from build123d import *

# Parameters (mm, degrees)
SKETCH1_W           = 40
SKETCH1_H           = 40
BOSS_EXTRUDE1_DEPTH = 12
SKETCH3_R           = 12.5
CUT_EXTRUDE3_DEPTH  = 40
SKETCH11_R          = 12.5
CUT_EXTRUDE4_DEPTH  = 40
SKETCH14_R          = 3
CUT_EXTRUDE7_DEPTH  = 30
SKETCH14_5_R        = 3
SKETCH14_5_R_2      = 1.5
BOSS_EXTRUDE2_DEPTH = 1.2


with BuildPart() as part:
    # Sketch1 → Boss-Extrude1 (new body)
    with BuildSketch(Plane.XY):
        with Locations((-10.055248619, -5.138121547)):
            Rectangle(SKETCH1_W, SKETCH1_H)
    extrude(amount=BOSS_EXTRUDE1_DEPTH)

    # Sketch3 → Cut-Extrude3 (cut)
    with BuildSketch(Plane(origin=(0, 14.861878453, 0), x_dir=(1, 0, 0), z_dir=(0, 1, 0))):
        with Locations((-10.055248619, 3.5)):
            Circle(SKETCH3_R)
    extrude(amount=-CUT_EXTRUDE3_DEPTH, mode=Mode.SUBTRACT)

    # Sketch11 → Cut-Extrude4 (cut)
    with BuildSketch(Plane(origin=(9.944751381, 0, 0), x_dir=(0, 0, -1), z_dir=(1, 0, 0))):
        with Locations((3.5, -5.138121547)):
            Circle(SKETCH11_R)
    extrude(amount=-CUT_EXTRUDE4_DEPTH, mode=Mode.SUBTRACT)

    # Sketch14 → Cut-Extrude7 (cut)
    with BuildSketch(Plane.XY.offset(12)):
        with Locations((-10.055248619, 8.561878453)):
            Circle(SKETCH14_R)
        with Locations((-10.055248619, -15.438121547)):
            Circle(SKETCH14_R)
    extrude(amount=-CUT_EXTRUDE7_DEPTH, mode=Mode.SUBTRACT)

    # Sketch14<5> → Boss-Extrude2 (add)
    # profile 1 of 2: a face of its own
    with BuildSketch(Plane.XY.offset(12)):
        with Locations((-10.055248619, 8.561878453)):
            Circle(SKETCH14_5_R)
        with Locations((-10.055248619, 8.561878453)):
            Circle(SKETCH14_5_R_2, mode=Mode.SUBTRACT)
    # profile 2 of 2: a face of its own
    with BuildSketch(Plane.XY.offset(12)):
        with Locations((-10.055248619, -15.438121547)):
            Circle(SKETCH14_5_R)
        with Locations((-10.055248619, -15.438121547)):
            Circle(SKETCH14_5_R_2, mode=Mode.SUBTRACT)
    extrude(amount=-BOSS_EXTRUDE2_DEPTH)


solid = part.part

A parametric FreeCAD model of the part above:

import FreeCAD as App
import Part
import Sketcher
from FreeCAD import Vector
Q = App.Units.Quantity


def add_polygon(sketch, points):
    """Adds a closed chain of lines whose ends are joined by coincident constraints."""
    first, n = sketch.GeometryCount, len(points)
    for a, b in zip(points, points[1:] + points[:1]):
        sketch.addGeometry(Part.LineSegment(App.Vector(*a, 0), App.Vector(*b, 0)), False)
    for i in range(n):
        sketch.addConstraint(Sketcher.Constraint("Coincident", first + i, 2, first + (i + 1) % n, 1))

doc = App.newDocument("Part")
body = doc.addObject("PartDesign::Body", "Body")

sketch1 = doc.addObject("Sketcher::SketchObject", "Sketch")
body.addObject(sketch1)
sketch1.AttachmentSupport = (doc.XY_Plane, [""])
sketch1.MapMode = "FlatFace"
add_polygon(sketch1, [(-30, 15), (-30, -25), (10, -25), (10, 15)])
sketch1.addConstraint([
    Sketcher.Constraint("Vertical", 0),
    Sketcher.Constraint("Horizontal", 1),
    Sketcher.Constraint("Vertical", 2),
    Sketcher.Constraint("Horizontal", 3),
    Sketcher.Constraint("Equal", 3, 0),
    Sketcher.Constraint("DistanceX", 1, 1, 1, 2, Q("40 mm")),
    Sketcher.Constraint("DistanceX", 0, 2, -1, 1, Q("30.055249 mm")),
    Sketcher.Constraint("DistanceY", 0, 2, -1, 1, Q("25.138122 mm")),
])
pad1 = doc.addObject("PartDesign::Pad", "Pad")
body.addObject(pad1)
pad1.Profile = sketch1
pad1.Length = 12

sketch2 = doc.addObject("Sketcher::SketchObject", "Sketch001")
body.addObject(sketch2)
sketch2.AttachmentSupport = (doc.XZ_Plane, [""])
sketch2.MapMode = "FlatFace"
sketch2.AttachmentOffset = App.Placement(Vector(0, 0, -14.861878), App.Rotation())
sketch2.addGeometry(Part.Circle(Vector(-10, -4, 0), Vector(0, 0, 1), 12), False)
sketch2.addConstraint([
    Sketcher.Constraint("Diameter", 0, Q("25 mm")),
    Sketcher.Constraint("DistanceY", 0, 3, -1, 1, Q("3.5 mm")),
    Sketcher.Constraint("DistanceX", 0, 3, -1, 1, Q("10.055249 mm")),
])
pocket1 = doc.addObject("PartDesign::Pocket", "Pocket")
body.addObject(pocket1)
pocket1.Profile = sketch2
pocket1.Length = 40
pocket1.Reversed = True

sketch3 = doc.addObject("Sketcher::SketchObject", "Sketch002")
body.addObject(sketch3)
sketch3.AttachmentSupport = (doc.YZ_Plane, [""])
sketch3.MapMode = "FlatFace"
sketch3.AttachmentOffset = App.Placement(Vector(0, 0, 9.944751), App.Rotation())
sketch3.addGeometry(Part.Circle(Vector(-5, -4, 0), Vector(0, 0, 1), 12), False)
sketch3.addConstraint([
    Sketcher.Constraint("Diameter", 0, Q("25 mm")),
    Sketcher.Constraint("DistanceY", 0, 3, -1, 1, Q("3.5 mm")),
    Sketcher.Constraint("DistanceX", 0, 3, -1, 1, Q("5.138122 mm")),
])
pocket2 = doc.addObject("PartDesign::Pocket", "Pocket001")
body.addObject(pocket2)
pocket2.Profile = sketch3
pocket2.Length = 40

sketch4 = doc.addObject("Sketcher::SketchObject", "Sketch003")
body.addObject(sketch4)
sketch4.AttachmentSupport = (doc.XY_Plane, [""])
sketch4.MapMode = "FlatFace"
sketch4.AttachmentOffset = App.Placement(Vector(0, 0, 12), App.Rotation())
sketch4.addGeometry([
    Part.Circle(Vector(-10.1, 8.6, 0), Vector(0, 0, 1), 3),
    Part.Circle(Vector(-10.1, -15.4, 0), Vector(0, 0, 1), 3),
], False)
sketch4.addConstraint([
    Sketcher.Constraint("Equal", 0, 1),
    Sketcher.Constraint("Vertical", 0, 3, 1, 3),
    Sketcher.Constraint("Diameter", 0, Q("6 mm")),
    Sketcher.Constraint("DistanceY", 1, 3, 0, 3, Q("24 mm")),
    Sketcher.Constraint("DistanceX", 0, 3, -1, 1, Q("10.055249 mm")),
    Sketcher.Constraint("DistanceY", -1, 1, 0, 3, Q("8.561878 mm")),
])
pocket3 = doc.addObject("PartDesign::Pocket", "Pocket002")
body.addObject(pocket3)
pocket3.Profile = sketch4
pocket3.Length = 30

sketch5 = doc.addObject("Sketcher::SketchObject", "Sketch004")
body.addObject(sketch5)
sketch5.AttachmentSupport = (doc.XY_Plane, [""])
sketch5.MapMode = "FlatFace"
sketch5.AttachmentOffset = App.Placement(Vector(0, 0, 12), App.Rotation())
sketch5.addGeometry([
    Part.Circle(Vector(-10.1, 8.6, 0), Vector(0, 0, 1), 3),
    Part.Circle(Vector(-10.1, 8.6, 0), Vector(0, 0, 1), 1.5),
    Part.Circle(Vector(-10.1, -15.4, 0), Vector(0, 0, 1), 3),
    Part.Circle(Vector(-10.1, -15.4, 0), Vector(0, 0, 1), 1.5),
], False)
sketch5.addConstraint([
    Sketcher.Constraint("Coincident", 1, 3, 0, 3),
    Sketcher.Constraint("Coincident", 3, 3, 2, 3),
    Sketcher.Constraint("Equal", 0, 2),
    Sketcher.Constraint("Equal", 1, 3),
    Sketcher.Constraint("Vertical", 1, 3, 2, 3),
    Sketcher.Constraint("Diameter", 0, Q("6 mm")),
    Sketcher.Constraint("Diameter", 1, Q("3 mm")),
    Sketcher.Constraint("DistanceY", 2, 3, 0, 3, Q("24 mm")),
    Sketcher.Constraint("DistanceX", 0, 3, -1, 1, Q("10.055249 mm")),
    Sketcher.Constraint("DistanceY", -1, 1, 0, 3, Q("8.561878 mm")),
])
pad2 = doc.addObject("PartDesign::Pad", "Pad001")
body.addObject(pad2)
pad2.Profile = sketch5
pad2.Length = 1.2
pad2.Reversed = True

doc.recompute()
